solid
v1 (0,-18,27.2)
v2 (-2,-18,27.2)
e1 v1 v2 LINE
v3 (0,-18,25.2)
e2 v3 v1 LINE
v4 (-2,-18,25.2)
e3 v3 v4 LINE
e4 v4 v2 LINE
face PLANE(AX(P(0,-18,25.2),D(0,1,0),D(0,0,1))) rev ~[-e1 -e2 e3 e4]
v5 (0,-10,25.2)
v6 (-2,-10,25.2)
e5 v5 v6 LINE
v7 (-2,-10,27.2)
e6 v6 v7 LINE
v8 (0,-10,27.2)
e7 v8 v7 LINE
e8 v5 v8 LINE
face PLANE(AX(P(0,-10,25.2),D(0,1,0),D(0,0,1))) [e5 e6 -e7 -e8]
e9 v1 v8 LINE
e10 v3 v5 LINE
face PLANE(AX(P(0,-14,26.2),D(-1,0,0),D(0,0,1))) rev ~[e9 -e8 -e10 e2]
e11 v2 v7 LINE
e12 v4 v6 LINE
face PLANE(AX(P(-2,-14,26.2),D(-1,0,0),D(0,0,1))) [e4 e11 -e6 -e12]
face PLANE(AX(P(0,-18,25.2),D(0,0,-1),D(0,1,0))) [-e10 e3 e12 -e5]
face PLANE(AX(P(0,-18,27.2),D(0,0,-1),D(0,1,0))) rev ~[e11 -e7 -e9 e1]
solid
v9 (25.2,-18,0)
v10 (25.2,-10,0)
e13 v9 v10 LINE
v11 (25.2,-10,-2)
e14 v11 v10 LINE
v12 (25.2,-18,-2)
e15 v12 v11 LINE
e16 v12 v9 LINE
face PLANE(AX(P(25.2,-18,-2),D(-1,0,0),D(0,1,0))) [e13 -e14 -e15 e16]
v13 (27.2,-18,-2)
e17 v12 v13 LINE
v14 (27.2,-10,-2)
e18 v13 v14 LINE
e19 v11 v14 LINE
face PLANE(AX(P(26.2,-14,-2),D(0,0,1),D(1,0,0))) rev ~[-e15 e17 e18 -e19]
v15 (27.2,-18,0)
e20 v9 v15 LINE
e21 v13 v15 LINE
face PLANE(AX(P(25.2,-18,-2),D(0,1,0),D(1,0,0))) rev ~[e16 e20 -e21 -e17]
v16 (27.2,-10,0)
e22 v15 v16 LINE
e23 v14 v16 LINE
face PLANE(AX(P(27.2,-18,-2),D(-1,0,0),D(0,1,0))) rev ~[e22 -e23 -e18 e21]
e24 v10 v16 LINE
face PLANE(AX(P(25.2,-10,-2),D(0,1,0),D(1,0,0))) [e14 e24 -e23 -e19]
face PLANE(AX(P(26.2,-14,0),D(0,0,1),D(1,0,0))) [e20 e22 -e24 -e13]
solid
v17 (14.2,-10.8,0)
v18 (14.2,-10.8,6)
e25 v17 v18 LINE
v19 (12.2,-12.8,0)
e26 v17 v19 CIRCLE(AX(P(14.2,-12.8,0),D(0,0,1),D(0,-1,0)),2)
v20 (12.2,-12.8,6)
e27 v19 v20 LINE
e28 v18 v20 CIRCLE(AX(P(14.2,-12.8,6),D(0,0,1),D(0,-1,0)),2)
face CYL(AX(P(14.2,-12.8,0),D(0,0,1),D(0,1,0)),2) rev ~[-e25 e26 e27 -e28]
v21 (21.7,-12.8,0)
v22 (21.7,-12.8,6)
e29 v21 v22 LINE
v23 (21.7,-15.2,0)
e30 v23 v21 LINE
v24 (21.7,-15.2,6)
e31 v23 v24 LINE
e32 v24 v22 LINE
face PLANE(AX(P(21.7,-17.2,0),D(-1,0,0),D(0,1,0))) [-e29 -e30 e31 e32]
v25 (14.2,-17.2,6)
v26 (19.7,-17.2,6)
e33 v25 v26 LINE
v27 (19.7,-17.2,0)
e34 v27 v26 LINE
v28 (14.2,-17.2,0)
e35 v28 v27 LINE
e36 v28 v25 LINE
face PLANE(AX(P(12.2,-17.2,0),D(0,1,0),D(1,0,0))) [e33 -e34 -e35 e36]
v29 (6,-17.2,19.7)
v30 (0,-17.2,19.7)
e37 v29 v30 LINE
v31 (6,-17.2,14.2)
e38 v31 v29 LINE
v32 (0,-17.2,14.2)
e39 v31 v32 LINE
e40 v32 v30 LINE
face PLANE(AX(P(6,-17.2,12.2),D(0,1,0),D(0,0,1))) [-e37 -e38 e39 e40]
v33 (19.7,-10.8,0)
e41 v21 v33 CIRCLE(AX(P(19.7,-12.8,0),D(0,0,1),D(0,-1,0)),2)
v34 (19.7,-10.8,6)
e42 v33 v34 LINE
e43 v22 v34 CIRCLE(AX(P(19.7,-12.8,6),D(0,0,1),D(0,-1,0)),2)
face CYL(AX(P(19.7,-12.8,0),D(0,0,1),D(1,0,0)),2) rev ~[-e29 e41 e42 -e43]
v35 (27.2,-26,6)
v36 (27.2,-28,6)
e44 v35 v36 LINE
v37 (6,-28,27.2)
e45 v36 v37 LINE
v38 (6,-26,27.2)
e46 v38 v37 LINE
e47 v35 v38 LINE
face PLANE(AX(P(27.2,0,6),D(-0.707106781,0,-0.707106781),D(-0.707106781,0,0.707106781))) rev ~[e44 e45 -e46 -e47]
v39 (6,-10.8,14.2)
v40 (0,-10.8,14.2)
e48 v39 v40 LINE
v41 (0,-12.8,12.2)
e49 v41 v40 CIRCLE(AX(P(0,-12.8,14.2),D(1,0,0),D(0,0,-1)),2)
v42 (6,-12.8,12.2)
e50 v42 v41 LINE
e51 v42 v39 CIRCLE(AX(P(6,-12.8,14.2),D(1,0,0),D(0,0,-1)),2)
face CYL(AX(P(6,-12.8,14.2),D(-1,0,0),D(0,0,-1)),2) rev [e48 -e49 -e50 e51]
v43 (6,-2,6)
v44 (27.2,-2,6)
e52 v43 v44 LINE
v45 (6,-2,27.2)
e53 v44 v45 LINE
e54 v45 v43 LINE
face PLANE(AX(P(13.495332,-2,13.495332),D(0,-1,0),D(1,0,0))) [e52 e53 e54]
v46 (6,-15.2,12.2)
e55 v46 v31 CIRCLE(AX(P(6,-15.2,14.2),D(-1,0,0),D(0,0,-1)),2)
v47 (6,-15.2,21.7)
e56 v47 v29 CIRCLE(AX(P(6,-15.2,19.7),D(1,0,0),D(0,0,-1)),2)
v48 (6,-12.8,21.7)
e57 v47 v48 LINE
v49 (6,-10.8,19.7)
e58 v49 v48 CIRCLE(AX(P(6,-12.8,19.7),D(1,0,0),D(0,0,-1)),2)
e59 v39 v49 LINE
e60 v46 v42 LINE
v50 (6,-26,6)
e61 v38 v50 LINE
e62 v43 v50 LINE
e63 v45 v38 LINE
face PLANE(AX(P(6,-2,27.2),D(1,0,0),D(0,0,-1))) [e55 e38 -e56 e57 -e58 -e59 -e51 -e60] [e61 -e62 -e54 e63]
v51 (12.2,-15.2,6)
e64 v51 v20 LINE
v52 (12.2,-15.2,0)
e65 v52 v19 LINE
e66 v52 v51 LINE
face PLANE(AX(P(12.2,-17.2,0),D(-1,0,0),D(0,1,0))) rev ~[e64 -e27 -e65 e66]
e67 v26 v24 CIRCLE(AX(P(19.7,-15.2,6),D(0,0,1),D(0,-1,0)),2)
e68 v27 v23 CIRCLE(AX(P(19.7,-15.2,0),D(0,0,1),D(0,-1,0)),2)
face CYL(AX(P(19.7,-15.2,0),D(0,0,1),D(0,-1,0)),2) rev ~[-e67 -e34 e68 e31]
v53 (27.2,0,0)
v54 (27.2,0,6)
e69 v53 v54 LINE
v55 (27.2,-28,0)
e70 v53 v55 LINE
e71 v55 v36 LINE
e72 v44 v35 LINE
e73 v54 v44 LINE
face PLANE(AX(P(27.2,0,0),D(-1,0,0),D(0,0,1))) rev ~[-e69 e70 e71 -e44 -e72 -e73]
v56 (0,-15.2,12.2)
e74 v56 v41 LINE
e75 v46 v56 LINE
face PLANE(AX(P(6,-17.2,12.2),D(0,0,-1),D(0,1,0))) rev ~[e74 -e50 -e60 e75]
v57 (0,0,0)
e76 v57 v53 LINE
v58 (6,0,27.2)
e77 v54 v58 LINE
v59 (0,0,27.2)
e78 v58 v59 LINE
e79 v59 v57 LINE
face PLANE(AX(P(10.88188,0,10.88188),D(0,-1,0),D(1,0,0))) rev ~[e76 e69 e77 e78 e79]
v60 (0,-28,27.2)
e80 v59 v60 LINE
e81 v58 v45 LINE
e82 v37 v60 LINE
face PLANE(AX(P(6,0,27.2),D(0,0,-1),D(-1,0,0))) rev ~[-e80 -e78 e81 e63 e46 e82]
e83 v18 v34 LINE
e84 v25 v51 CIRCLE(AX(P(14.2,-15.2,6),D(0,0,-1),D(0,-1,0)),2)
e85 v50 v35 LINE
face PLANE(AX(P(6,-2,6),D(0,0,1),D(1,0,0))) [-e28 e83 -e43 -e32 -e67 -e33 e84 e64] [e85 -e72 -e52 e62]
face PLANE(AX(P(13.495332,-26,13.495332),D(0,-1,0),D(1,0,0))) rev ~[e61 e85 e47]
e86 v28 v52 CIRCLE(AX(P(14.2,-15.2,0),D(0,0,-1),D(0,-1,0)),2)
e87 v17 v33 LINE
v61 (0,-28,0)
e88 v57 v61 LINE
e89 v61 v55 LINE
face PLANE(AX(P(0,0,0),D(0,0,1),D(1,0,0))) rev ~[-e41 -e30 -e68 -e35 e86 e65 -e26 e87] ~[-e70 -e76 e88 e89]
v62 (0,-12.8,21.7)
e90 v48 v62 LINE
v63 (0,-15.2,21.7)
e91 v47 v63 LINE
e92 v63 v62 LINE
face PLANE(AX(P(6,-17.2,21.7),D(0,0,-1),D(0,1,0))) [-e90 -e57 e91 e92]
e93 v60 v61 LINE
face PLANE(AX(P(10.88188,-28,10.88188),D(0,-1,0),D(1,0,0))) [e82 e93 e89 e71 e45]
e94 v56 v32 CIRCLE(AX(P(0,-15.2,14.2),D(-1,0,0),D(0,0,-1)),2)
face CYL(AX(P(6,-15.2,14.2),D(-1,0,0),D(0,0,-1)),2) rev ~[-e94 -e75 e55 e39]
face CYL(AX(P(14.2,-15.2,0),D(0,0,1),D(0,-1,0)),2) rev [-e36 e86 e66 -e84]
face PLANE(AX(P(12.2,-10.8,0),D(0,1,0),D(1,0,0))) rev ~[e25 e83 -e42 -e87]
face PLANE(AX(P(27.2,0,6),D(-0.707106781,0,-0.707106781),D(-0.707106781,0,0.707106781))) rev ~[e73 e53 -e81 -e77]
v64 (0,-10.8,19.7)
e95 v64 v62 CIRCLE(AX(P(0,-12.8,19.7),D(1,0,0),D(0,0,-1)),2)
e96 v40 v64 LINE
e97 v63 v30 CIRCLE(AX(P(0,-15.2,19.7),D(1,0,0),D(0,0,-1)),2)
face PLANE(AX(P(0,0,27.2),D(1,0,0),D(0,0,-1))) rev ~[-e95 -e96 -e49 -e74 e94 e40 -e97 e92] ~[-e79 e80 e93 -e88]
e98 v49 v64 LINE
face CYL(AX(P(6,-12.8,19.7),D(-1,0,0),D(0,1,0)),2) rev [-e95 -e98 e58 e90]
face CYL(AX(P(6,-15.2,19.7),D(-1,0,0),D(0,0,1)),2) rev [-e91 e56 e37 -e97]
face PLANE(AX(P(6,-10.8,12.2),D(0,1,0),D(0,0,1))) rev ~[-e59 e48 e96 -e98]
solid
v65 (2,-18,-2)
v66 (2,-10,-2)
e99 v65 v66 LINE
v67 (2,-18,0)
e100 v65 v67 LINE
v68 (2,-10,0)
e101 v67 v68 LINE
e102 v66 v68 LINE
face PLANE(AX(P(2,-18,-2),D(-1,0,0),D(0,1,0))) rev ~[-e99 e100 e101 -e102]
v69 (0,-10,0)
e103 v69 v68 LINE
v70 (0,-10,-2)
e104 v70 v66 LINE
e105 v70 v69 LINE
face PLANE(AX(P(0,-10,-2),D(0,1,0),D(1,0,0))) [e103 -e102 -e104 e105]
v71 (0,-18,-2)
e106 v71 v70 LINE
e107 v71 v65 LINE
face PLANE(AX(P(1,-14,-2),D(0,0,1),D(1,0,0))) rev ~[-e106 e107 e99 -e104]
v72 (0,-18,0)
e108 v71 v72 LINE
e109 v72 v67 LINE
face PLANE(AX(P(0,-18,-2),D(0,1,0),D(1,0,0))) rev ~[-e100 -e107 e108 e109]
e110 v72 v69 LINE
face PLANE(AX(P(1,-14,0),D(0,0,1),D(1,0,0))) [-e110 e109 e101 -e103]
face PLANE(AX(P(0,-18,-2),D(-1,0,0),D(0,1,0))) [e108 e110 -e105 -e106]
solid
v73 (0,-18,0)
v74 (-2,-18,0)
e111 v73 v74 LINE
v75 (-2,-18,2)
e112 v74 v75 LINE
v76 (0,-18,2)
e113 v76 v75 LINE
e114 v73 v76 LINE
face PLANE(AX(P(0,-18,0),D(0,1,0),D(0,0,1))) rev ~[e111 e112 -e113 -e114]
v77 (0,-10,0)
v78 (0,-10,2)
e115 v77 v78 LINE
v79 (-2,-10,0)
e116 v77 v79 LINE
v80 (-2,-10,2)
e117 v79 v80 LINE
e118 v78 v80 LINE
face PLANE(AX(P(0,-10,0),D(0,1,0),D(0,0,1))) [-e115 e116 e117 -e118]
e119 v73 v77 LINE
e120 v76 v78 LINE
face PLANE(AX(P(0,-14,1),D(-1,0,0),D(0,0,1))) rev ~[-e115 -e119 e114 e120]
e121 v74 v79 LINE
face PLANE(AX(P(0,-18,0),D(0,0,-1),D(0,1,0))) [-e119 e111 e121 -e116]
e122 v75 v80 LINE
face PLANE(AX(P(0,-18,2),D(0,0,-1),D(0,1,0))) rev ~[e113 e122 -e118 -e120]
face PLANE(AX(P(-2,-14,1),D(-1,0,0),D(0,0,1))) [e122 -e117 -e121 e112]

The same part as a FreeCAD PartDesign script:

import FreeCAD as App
import Part
import Sketcher
from FreeCAD import Vector
Q = App.Units.Quantity


def edges_at(feature, points):
    """Names of the edges that pass closest to the given points."""
    edges = feature.Shape.Edges
    near = lambda p: min(range(len(edges)), key=lambda i: edges[i].distToShape(Part.Vertex(*p))[0])
    return sorted({f"Edge{near(p) + 1}" for p in points})


def add_polygon(sketch, points):
    """Adds a closed chain of lines whose ends are joined by coincident constraints."""
    first, n = sketch.GeometryCount, len(points)
    for a, b in zip(points, points[1:] + points[:1]):
        sketch.addGeometry(Part.LineSegment(App.Vector(*a, 0), App.Vector(*b, 0)), False)
    for i in range(n):
        sketch.addConstraint(Sketcher.Constraint("Coincident", first + i, 2, first + (i + 1) % n, 1))

doc = App.newDocument("Part")
params = doc.addObject("Spreadsheet::Sheet", "Params")
for row, (alias, value) in enumerate([
    ("sketch1_width", "2 mm"),
    ("sketch1_height", "8 mm"),
    ("pad1_length", "2 mm"),
    ("sketch2_width", "2 mm"),
    ("sketch2_height", "8 mm"),
    ("pad2_length", "2 mm"),
    ("sketch3_width", "2 mm"),
    ("sketch3_height", "8 mm"),
    ("pad3_length", "2 mm"),
    ("sketch4_width", "2 mm"),
    ("sketch4_height", "8 mm"),
    ("pad4_length", "2 mm"),
    ("sketch5_width", "9.5 mm"),
    ("sketch5_height", "6.4 mm"),
    ("pad5_length", "6 mm"),
    ("sketch6_width", "9.5 mm"),
    ("sketch6_height", "6.4 mm"),
    ("pad6_length", "6 mm"),
    ("sketch7_width", "21.2 mm"),
    ("pad7_length", "24 mm"),
    ("sketch8_width", "6 mm"),
    ("sketch8_width2", "27.2 mm"),
    ("pad8_length", "28 mm"),
    ("fillet_radius", "2 mm"),
], start=1):
    params.set(f"A{row}", alias)
    params.set(f"B{row}", "=" + value)
    params.setAlias(f"B{row}", alias)

body = doc.addObject("PartDesign::Body", "Body")

sketch1 = body.newObject("Sketcher::SketchObject", "Sketch")
sketch1.AttachmentSupport = (doc.getObject("XY_Plane"), [""])
sketch1.MapMode = "FlatFace"
sketch1.AttachmentOffset = App.Placement(Vector(0, 0, -2), App.Rotation())
add_polygon(sketch1, [(0, -10), (0, -18), (2, -18), (2, -10)])
sketch1.addConstraint([
    Sketcher.Constraint("Vertical", 0),
    Sketcher.Constraint("Horizontal", 1),
    Sketcher.Constraint("Vertical", 2),
    Sketcher.Constraint("Horizontal", 3),
    Sketcher.Constraint("PointOnObject", 0, 2, -2),
    Sketcher.Constraint("DistanceX", 1, 1, 1, 2, Q("2 mm")),
    Sketcher.Constraint("DistanceY", 0, 2, 0, 1, Q("8 mm")),
    Sketcher.Constraint("DistanceY", 0, 2, -1, 1, Q("18 mm")),
])
sketch1.setExpression("Constraints[9]", "Params.sketch1_width")
sketch1.setExpression("Constraints[10]", "Params.sketch1_height")
pad1 = body.newObject("PartDesign::Pad", "Pad")
pad1.Profile = sketch1
pad1.setExpression("Length", "Params.pad1_length")
body2 = doc.addObject("PartDesign::Body", "Body001")
body2.AllowCompound = True

sketch2 = body2.newObject("Sketcher::SketchObject", "Sketch001")
sketch2.AttachmentSupport = (doc.getObject("XY_Plane001"), [""])
sketch2.MapMode = "FlatFace"
sketch2.AttachmentOffset = App.Placement(Vector(0, 0, -2), App.Rotation())
add_polygon(sketch2, [(25.2, -10), (25.2, -18), (27.2, -18), (27.2, -10)])
sketch2.addConstraint([
    Sketcher.Constraint("Vertical", 0),
    Sketcher.Constraint("Horizontal", 1),
    Sketcher.Constraint("Vertical", 2),
    Sketcher.Constraint("Horizontal", 3),
    Sketcher.Constraint("DistanceX", 1, 1, 1, 2, Q("2 mm")),
    Sketcher.Constraint("DistanceY", 0, 2, 0, 1, Q("8 mm")),
    Sketcher.Constraint("DistanceY", 0, 2, -1, 1, Q("18 mm")),
    Sketcher.Constraint("DistanceX", -1, 1, 0, 2, Q("25.2 mm")),
])
sketch2.setExpression("Constraints[8]", "Params.sketch2_width")
sketch2.setExpression("Constraints[9]", "Params.sketch2_height")
pad2 = body2.newObject("PartDesign::Pad", "Pad001")
pad2.Profile = sketch2
pad2.setExpression("Length", "Params.pad2_length")
doc.recompute()

boolean = body2.newObject("PartDesign::Boolean", "Boolean")
boolean.Type = "Fuse"
boolean.addObjects([body])
body3 = doc.addObject("PartDesign::Body", "Body002")

sketch3 = body3.newObject("Sketcher::SketchObject", "Sketch002")
sketch3.AttachmentSupport = (doc.getObject("XY_Plane002"), [""])
sketch3.MapMode = "FlatFace"
sketch3.AttachmentOffset = App.Placement(Vector(0, 0, -2), App.Rotation())
add_polygon(sketch3, [(0, -10), (0, -18), (2, -18), (2, -10)])
sketch3.addConstraint([
    Sketcher.Constraint("Vertical", 0),
    Sketcher.Constraint("Horizontal", 1),
    Sketcher.Constraint("Vertical", 2),
    Sketcher.Constraint("Horizontal", 3),
    Sketcher.Constraint("PointOnObject", 0, 2, -2),
    Sketcher.Constraint("DistanceX", 1, 1, 1, 2, Q("2 mm")),
    Sketcher.Constraint("DistanceY", 0, 2, 0, 1, Q("8 mm")),
    Sketcher.Constraint("DistanceY", 0, 2, -1, 1, Q("18 mm")),
])
sketch3.setExpression("Constraints[9]", "Params.sketch3_width")
sketch3.setExpression("Constraints[10]", "Params.sketch3_height")
pad3 = body3.newObject("PartDesign::Pad", "Pad002")
pad3.Profile = sketch3
pad3.setExpression("Length", "Params.pad3_length")
body4 = doc.addObject("PartDesign::Body", "Body003")
body4.AllowCompound = True

sketch4 = body4.newObject("Sketcher::SketchObject", "Sketch003")
sketch4.AttachmentSupport = (doc.getObject("XY_Plane003"), [""])
sketch4.MapMode = "FlatFace"
sketch4.AttachmentOffset = App.Placement(Vector(0, 0, -2), App.Rotation())
add_polygon(sketch4, [(25.2, -10), (25.2, -18), (27.2, -18), (27.2, -10)])
sketch4.addConstraint([
    Sketcher.Constraint("Vertical", 0),
    Sketcher.Constraint("Horizontal", 1),
    Sketcher.Constraint("Vertical", 2),
    Sketcher.Constraint("Horizontal", 3),
    Sketcher.Constraint("DistanceX", 1, 1, 1, 2, Q("2 mm")),
    Sketcher.Constraint("DistanceY", 0, 2, 0, 1, Q("8 mm")),
    Sketcher.Constraint("DistanceY", 0, 2, -1, 1, Q("18 mm")),
    Sketcher.Constraint("DistanceX", -1, 1, 0, 2, Q("25.2 mm")),
])
sketch4.setExpression("Constraints[8]", "Params.sketch4_width")
sketch4.setExpression("Constraints[9]", "Params.sketch4_height")
pad4 = body4.newObject("PartDesign::Pad", "Pad003")
pad4.Profile = sketch4
pad4.setExpression("Length", "Params.pad4_length")
doc.recompute()

boolean2 = body4.newObject("PartDesign::Boolean", "Boolean001")
boolean2.Type = "Fuse"
boolean2.addObjects([body3])
body5 = doc.addObject("PartDesign::Body", "Body004")
body5.AllowCompound = True
doc.recompute()

body4.Placement = App.Placement(Vector(-2, 0, 0), App.Rotation(Vector(0, 1, 0), 270))
boolean3 = body5.newObject("PartDesign::Boolean", "Boolean002")
boolean3.Type = "Fuse"
boolean3.addObjects([body4])
doc.recompute()

boolean4 = body5.newObject("PartDesign::Boolean", "Boolean003")
boolean4.Type = "Fuse"
boolean4.addObjects([body2])
body6 = doc.addObject("PartDesign::Body", "Body005")

sketch5 = body6.newObject("Sketcher::SketchObject", "Sketch004")
sketch5.AttachmentSupport = (doc.getObject("XY_Plane005"), [""])
sketch5.MapMode = "FlatFace"
add_polygon(sketch5, [(12, -11), (12, -17), (22, -17), (22, -11)])
sketch5.addConstraint([
    Sketcher.Constraint("Vertical", 0),
    Sketcher.Constraint("Horizontal", 1),
    Sketcher.Constraint("Vertical", 2),
    Sketcher.Constraint("Horizontal", 3),
    Sketcher.Constraint("DistanceX", 1, 1, 1, 2, Q("9.5 mm")),
    Sketcher.Constraint("DistanceY", 0, 2, 0, 1, Q("6.4 mm")),
    Sketcher.Constraint("DistanceX", -1, 1, 0, 2, Q("12.2 mm")),
    Sketcher.Constraint("DistanceY", 0, 2, -1, 1, Q("17.2 mm")),
])
sketch5.setExpression("Constraints[8]", "Params.sketch5_width")
sketch5.setExpression("Constraints[9]", "Params.sketch5_height")
pad5 = body6.newObject("PartDesign::Pad", "Pad004")
pad5.Profile = sketch5
pad5.setExpression("Length", "Params.pad5_length")
body7 = doc.addObject("PartDesign::Body", "Body006")

sketch6 = body7.newObject("Sketcher::SketchObject", "Sketch005")
sketch6.AttachmentSupport = (doc.getObject("XY_Plane006"), [""])
sketch6.MapMode = "FlatFace"
add_polygon(sketch6, [(12, -11), (12, -17), (22, -17), (22, -11)])
sketch6.addConstraint([
    Sketcher.Constraint("Vertical", 0),
    Sketcher.Constraint("Horizontal", 1),
    Sketcher.Constraint("Vertical", 2),
    Sketcher.Constraint("Horizontal", 3),
    Sketcher.Constraint("DistanceX", 1, 1, 1, 2, Q("9.5 mm")),
    Sketcher.Constraint("DistanceY", 0, 2, 0, 1, Q("6.4 mm")),
    Sketcher.Constraint("DistanceX", -1, 1, 0, 2, Q("12.2 mm")),
    Sketcher.Constraint("DistanceY", 0, 2, -1, 1, Q("17.2 mm")),
])
sketch6.setExpression("Constraints[8]", "Params.sketch6_width")
sketch6.setExpression("Constraints[9]", "Params.sketch6_height")
pad6 = body7.newObject("PartDesign::Pad", "Pad005")
pad6.Profile = sketch6
pad6.setExpression("Length", "Params.pad6_length")
body8 = doc.addObject("PartDesign::Body", "Body007")
body8.AllowCompound = True
doc.recompute()

body7.Placement = App.Placement(Vector(6, 0, 0), App.Rotation(Vector(0, 1, 0), 270))
boolean5 = body8.newObject("PartDesign::Boolean", "Boolean004")
boolean5.Type = "Fuse"
boolean5.addObjects([body7])
doc.recompute()

boolean6 = body8.newObject("PartDesign::Boolean", "Boolean005")
boolean6.Type = "Fuse"
boolean6.addObjects([body6])
body9 = doc.addObject("PartDesign::Body", "Body008")

sketch7 = body9.newObject("Sketcher::SketchObject", "Sketch006")
sketch7.AttachmentSupport = (doc.getObject("XZ_Plane008"), [""])
sketch7.MapMode = "FlatFace"
add_polygon(sketch7, [(6, 6), (27, 6), (6, 27)])
sketch7.addConstraint([
    Sketcher.Constraint("Horizontal", 0),
    Sketcher.Constraint("Vertical", 2),
    Sketcher.Constraint("Equal", 0, 2),
    Sketcher.Constraint("DistanceX", 0, 1, 0, 2, Q("21.2 mm")),
    Sketcher.Constraint("DistanceY", -1, 1, 0, 2, Q("6 mm")),
    Sketcher.Constraint("DistanceX", -1, 1, 1, 2, Q("6 mm")),
])
sketch7.setExpression("Constraints[6]", "Params.sketch7_width")
pad7 = body9.newObject("PartDesign::Pad", "Pad006")
pad7.Profile = sketch7
pad7.setExpression("Length", "Params.pad7_length")
body10 = doc.addObject("PartDesign::Body", "Body009")
doc.recompute()

body9.Placement = App.Placement(Vector(0, -2, 0), App.Rotation(Vector(0, 0, 1), 0))
boolean7 = body10.newObject("PartDesign::Boolean", "Boolean006")
boolean7.Type = "Fuse"
boolean7.addObjects([body9])
body11 = doc.addObject("PartDesign::Body", "Body010")

sketch8 = body11.newObject("Sketcher::SketchObject", "Sketch007")
sketch8.AttachmentSupport = (doc.getObject("XZ_Plane010"), [""])
sketch8.MapMode = "FlatFace"
add_polygon(sketch8, [(0, 0), (27, 0), (27, 6), (6, 27), (0, 27)])
sketch8.addConstraint([
    Sketcher.Constraint("Horizontal", 0),
    Sketcher.Constraint("Vertical", 1),
    Sketcher.Constraint("Horizontal", 3),
    Sketcher.Constraint("Vertical", 4),
    Sketcher.Constraint("Coincident", 4, 2, -1, 1),
    Sketcher.Constraint("Equal", 3, 1),
    Sketcher.Constraint("Equal", 0, 4),
    Sketcher.Constraint("DistanceX", 3, 2, 3, 1, Q("6 mm")),
    Sketcher.Constraint("DistanceX", 0, 1, 0, 2, Q("27.2 mm")),
])
sketch8.setExpression("Constraints[12]", "Params.sketch8_width")
sketch8.setExpression("Constraints[13]", "Params.sketch8_width2")
pad8 = body11.newObject("PartDesign::Pad", "Pad007")
pad8.Profile = sketch8
pad8.setExpression("Length", "Params.pad8_length")
doc.recompute()

boolean8 = body11.newObject("PartDesign::Boolean", "Boolean007")
boolean8.Type = "Cut"
boolean8.addObjects([body10])
doc.recompute()

boolean9 = body11.newObject("PartDesign::Boolean", "Boolean008")
boolean9.Type = "Cut"
boolean9.addObjects([body8])
doc.recompute()

fillet = body11.newObject("PartDesign::Fillet", "Fillet")
fillet.Base = (boolean9, edges_at(boolean9, [
    (12.2, -17.2, 3),
    (12.2, -10.8, 3),
    (21.7, -17.2, 3),
    (21.7, -10.8, 3),
    (3, -10.8, 21.7),
    (3, -10.8, 12.2),
    (3, -17.2, 21.7),
    (3, -17.2, 12.2),
]))
fillet.setExpression("Radius", "Params.fillet_radius")

doc.recompute()
